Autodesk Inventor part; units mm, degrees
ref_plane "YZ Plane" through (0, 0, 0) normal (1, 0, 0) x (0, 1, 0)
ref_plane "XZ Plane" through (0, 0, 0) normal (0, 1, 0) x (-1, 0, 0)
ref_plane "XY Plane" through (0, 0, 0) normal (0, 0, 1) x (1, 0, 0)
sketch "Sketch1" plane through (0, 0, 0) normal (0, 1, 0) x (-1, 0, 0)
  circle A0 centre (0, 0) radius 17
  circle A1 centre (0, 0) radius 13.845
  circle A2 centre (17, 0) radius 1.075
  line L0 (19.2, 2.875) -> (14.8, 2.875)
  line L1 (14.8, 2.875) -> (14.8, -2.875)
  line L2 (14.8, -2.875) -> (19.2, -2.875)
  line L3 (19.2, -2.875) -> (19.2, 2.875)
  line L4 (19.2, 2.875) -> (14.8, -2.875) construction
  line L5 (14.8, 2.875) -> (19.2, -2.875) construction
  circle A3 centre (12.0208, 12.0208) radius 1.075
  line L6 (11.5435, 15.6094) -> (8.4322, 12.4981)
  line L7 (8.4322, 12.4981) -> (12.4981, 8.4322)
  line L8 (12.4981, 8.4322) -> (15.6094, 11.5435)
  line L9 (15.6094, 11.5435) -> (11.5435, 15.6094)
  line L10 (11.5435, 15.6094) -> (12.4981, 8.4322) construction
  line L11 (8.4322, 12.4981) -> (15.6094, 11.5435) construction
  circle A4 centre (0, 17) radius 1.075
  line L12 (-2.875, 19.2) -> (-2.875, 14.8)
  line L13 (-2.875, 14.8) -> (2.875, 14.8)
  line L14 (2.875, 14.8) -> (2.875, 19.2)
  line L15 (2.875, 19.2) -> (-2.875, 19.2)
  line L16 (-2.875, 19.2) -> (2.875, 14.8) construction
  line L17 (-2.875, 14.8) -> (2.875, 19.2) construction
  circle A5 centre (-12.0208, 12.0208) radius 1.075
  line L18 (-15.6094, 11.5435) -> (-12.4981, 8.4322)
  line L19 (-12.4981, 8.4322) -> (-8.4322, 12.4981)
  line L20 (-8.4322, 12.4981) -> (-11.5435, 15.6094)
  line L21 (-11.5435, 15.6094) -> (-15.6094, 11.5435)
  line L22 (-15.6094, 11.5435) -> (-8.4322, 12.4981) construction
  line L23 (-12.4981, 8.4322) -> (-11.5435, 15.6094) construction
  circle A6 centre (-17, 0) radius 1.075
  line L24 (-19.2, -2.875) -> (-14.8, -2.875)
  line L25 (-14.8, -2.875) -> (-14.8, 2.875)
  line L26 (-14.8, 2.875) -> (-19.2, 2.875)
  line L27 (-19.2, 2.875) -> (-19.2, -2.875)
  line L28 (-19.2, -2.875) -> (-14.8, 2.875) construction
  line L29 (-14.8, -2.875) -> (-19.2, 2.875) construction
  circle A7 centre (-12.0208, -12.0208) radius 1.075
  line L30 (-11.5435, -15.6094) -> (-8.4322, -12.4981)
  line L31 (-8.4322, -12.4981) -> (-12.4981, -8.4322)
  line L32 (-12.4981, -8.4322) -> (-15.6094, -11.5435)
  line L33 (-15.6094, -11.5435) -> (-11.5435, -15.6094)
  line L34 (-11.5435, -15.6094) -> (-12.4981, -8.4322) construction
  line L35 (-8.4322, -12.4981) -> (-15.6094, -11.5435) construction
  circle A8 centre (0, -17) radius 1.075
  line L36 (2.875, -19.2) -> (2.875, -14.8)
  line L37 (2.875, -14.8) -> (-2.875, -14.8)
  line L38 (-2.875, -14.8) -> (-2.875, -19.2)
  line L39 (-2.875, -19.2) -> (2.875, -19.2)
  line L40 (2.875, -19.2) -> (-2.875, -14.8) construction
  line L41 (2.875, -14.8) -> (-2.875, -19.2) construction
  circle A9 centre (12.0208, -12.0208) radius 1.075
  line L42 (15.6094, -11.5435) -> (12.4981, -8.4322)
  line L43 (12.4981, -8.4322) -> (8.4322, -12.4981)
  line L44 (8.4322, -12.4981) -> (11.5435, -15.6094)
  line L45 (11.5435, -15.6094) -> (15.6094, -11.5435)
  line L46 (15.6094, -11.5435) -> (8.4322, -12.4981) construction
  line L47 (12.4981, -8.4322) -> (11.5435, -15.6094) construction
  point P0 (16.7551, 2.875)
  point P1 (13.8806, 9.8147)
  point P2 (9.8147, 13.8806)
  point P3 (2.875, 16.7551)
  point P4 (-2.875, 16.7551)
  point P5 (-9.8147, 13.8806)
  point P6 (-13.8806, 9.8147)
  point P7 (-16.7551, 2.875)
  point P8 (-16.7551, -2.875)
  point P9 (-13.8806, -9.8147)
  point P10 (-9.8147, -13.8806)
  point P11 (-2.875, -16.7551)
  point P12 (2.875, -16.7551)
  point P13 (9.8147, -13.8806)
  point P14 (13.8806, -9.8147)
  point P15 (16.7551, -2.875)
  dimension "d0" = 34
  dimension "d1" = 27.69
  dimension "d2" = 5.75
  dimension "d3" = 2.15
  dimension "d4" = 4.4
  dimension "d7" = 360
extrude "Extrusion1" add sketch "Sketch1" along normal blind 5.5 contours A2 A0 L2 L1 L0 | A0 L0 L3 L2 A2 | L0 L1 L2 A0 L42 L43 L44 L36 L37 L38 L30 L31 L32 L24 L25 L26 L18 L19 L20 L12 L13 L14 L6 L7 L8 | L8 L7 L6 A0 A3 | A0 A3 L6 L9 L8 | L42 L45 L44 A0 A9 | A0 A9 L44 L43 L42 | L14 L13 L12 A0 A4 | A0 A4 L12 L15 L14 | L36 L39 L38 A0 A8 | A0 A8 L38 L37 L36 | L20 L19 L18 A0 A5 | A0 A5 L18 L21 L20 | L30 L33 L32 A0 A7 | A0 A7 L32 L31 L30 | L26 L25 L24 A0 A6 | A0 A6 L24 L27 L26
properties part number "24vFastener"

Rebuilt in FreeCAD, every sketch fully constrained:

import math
import FreeCAD as App
import Part
import Sketcher

V = App.Vector
Q = App.Units.Quantity

doc = App.newDocument("Part")
body = doc.addObject("PartDesign::Body", "Body")

# Sketch on XZ plane
sketch1 = doc.addObject("Sketcher::SketchObject", "Sketch")
body.addObject(sketch1)
sketch1.AttachmentSupport = (doc.XZ_Plane, [""])
sketch1.MapMode = "FlatFace"
sketch1.addGeometry([
    Part.LineSegment(V(-19.2, 2.9, 0), V(-16.8, 2.9, 0)),  # 0
    Part.ArcOfCircle(Part.Circle(V(0, 0, 0), V(0, 0, 1), 17), math.radians(145), math.radians(170)),  # 1
    Part.LineSegment(V(-13.9, 9.8, 0), V(-15.6, 11.5, 0)),  # 2
    Part.LineSegment(V(-15.6, 11.5, 0), V(-11.5, 15.6, 0)),  # 3
    Part.LineSegment(V(-11.5, 15.6, 0), V(-9.8, 13.9, 0)),  # 4
    Part.ArcOfCircle(Part.Circle(V(0, 0, 0), V(0, 0, 1), 17), math.radians(100), math.radians(125)),  # 5
    Part.LineSegment(V(-2.9, 16.8, 0), V(-2.9, 19.2, 0)),  # 6
    Part.LineSegment(V(-2.9, 19.2, 0), V(2.9, 19.2, 0)),  # 7
    Part.LineSegment(V(2.9, 19.2, 0), V(2.9, 16.8, 0)),  # 8
    Part.ArcOfCircle(Part.Circle(V(0, 0, 0), V(0, 0, 1), 17), math.radians(55), math.radians(80)),  # 9
    Part.LineSegment(V(9.8, 13.9, 0), V(11.5, 15.6, 0)),  # 10
    Part.LineSegment(V(11.5, 15.6, 0), V(15.6, 11.5, 0)),  # 11
    Part.LineSegment(V(15.6, 11.5, 0), V(13.9, 9.8, 0)),  # 12
    Part.ArcOfCircle(Part.Circle(V(0, 0, 0), V(0, 0, 1), 17), math.radians(10), math.radians(35)),  # 13
    Part.LineSegment(V(16.8, 2.9, 0), V(19.2, 2.9, 0)),  # 14
    Part.LineSegment(V(19.2, 2.9, 0), V(19.2, -2.9, 0)),  # 15
    Part.LineSegment(V(19.2, -2.9, 0), V(16.8, -2.9, 0)),  # 16
    Part.ArcOfCircle(Part.Circle(V(0, 0, 0), V(0, 0, 1), 17), math.radians(-35), math.radians(-10)),  # 17
    Part.LineSegment(V(13.9, -9.8, 0), V(15.6, -11.5, 0)),  # 18
    Part.LineSegment(V(15.6, -11.5, 0), V(11.5, -15.6, 0)),  # 19
    Part.LineSegment(V(11.5, -15.6, 0), V(9.8, -13.9, 0)),  # 20
    Part.ArcOfCircle(Part.Circle(V(0, 0, 0), V(0, 0, 1), 17), math.radians(-80), math.radians(-55)),  # 21
    Part.LineSegment(V(2.9, -16.8, 0), V(2.9, -19.2, 0)),  # 22
    Part.LineSegment(V(2.9, -19.2, 0), V(-2.9, -19.2, 0)),  # 23
    Part.LineSegment(V(-2.9, -19.2, 0), V(-2.9, -16.8, 0)),  # 24
    Part.ArcOfCircle(Part.Circle(V(0, 0, 0), V(0, 0, 1), 17), math.radians(-125), math.radians(-100)),  # 25
    Part.LineSegment(V(-9.8, -13.9, 0), V(-11.5, -15.6, 0)),  # 26
    Part.LineSegment(V(-11.5, -15.6, 0), V(-15.6, -11.5, 0)),  # 27
    Part.LineSegment(V(-15.6, -11.5, 0), V(-13.9, -9.8, 0)),  # 28
    Part.ArcOfCircle(Part.Circle(V(0, 0, 0), V(0, 0, 1), 17), math.radians(-170), math.radians(-145)),  # 29
    Part.LineSegment(V(-16.8, -2.9, 0), V(-19.2, -2.9, 0)),  # 30
    Part.LineSegment(V(-19.2, -2.9, 0), V(-19.2, 2.9, 0)),  # 31
    Part.Circle(V(-17, 0, 0), V(0, 0, 1), 1.1),  # 32
    Part.Circle(V(0, 0, 0), V(0, 0, 1), 13.8),  # 33
    Part.Circle(V(-12, 12, 0), V(0, 0, 1), 1.1),  # 34
    Part.Circle(V(-12, -12, 0), V(0, 0, 1), 1.1),  # 35
    Part.Circle(V(0, -17, 0), V(0, 0, 1), 1.1),  # 36
    Part.Circle(V(12, -12, 0), V(0, 0, 1), 1.1),  # 37
    Part.Circle(V(17, 0, 0), V(0, 0, 1), 1.1),  # 38
    Part.Circle(V(12, 12, 0), V(0, 0, 1), 1.1),  # 39
    Part.Circle(V(0, 17, 0), V(0, 0, 1), 1.1),  # 40
], False)
sketch1.addConstraint([
    Sketcher.Constraint("Coincident", 0, 2, 1, 2),
    Sketcher.Constraint("Coincident", 1, 1, 2, 1),
    Sketcher.Constraint("Coincident", 2, 2, 3, 1),
    Sketcher.Constraint("Coincident", 3, 2, 4, 1),
    Sketcher.Constraint("Coincident", 4, 2, 5, 2),
    Sketcher.Constraint("Coincident", 5, 1, 6, 1),
    Sketcher.Constraint("Coincident", 6, 2, 7, 1),
    Sketcher.Constraint("Coincident", 7, 2, 8, 1),
    Sketcher.Constraint("Coincident", 8, 2, 9, 2),
    Sketcher.Constraint("Coincident", 9, 1, 10, 1),
    Sketcher.Constraint("Coincident", 10, 2, 11, 1),
    Sketcher.Constraint("Coincident", 11, 2, 12, 1),
    Sketcher.Constraint("Coincident", 12, 2, 13, 2),
    Sketcher.Constraint("Coincident", 13, 1, 14, 1),
    Sketcher.Constraint("Coincident", 14, 2, 15, 1),
    Sketcher.Constraint("Coincident", 15, 2, 16, 1),
    Sketcher.Constraint("Coincident", 16, 2, 17, 2),
    Sketcher.Constraint("Coincident", 17, 1, 18, 1),
    Sketcher.Constraint("Coincident", 18, 2, 19, 1),
    Sketcher.Constraint("Coincident", 19, 2, 20, 1),
    Sketcher.Constraint("Coincident", 20, 2, 21, 2),
    Sketcher.Constraint("Coincident", 21, 1, 22, 1),
    Sketcher.Constraint("Coincident", 22, 2, 23, 1),
    Sketcher.Constraint("Coincident", 23, 2, 24, 1),
    Sketcher.Constraint("Coincident", 24, 2, 25, 2),
    Sketcher.Constraint("Coincident", 25, 1, 26, 1),
    Sketcher.Constraint("Coincident", 26, 2, 27, 1),
    Sketcher.Constraint("Coincident", 27, 2, 28, 1),
    Sketcher.Constraint("Coincident", 28, 2, 29, 2),
    Sketcher.Constraint("Coincident", 29, 1, 30, 1),
    Sketcher.Constraint("Coincident", 30, 2, 31, 1),
    Sketcher.Constraint("Coincident", 31, 2, 0, 1),
    Sketcher.Constraint("Horizontal", 0),
    Sketcher.Constraint("Vertical", 6),
    Sketcher.Constraint("Horizontal", 7),
    Sketcher.Constraint("Vertical", 8),
    Sketcher.Constraint("Horizontal", 14),
    Sketcher.Constraint("Vertical", 15),
    Sketcher.Constraint("Horizontal", 16),
    Sketcher.Constraint("Vertical", 22),
    Sketcher.Constraint("Horizontal", 23),
    Sketcher.Constraint("Vertical", 24),
    Sketcher.Constraint("Horizontal", 30),
    Sketcher.Constraint("Vertical", 31),
    Sketcher.Constraint("Coincident", 1, 3, -1, 1),
    Sketcher.Constraint("Coincident", 5, 3, -1, 1),
    Sketcher.Constraint("Coincident", 9, 3, -1, 1),
    Sketcher.Constraint("Coincident", 13, 3, -1, 1),
    Sketcher.Constraint("Coincident", 17, 3, -1, 1),
    Sketcher.Constraint("Coincident", 21, 3, -1, 1),
    Sketcher.Constraint("Coincident", 25, 3, -1, 1),
    Sketcher.Constraint("Coincident", 29, 3, -1, 1),
    Sketcher.Constraint("Coincident", 33, 3, -1, 1),
    Sketcher.Constraint("Equal", 1, 5),
    Sketcher.Constraint("Equal", 5, 9),
    Sketcher.Constraint("Equal", 9, 13),
    Sketcher.Constraint("Equal", 13, 17),
    Sketcher.Constraint("Equal", 17, 21),
    Sketcher.Constraint("Equal", 21, 25),
    Sketcher.Constraint("Equal", 25, 29),
    Sketcher.Constraint("Equal", 32, 34),
    Sketcher.Constraint("Equal", 34, 35),
    Sketcher.Constraint("Equal", 35, 36),
    Sketcher.Constraint("Equal", 36, 37),
    Sketcher.Constraint("Equal", 37, 38),
    Sketcher.Constraint("Equal", 38, 39),
    Sketcher.Constraint("Equal", 39, 40),
    Sketcher.Constraint("Symmetric", 34, 3, 37, 3, -1, 1),
    Sketcher.Constraint("Symmetric", 32, 3, 38, 3, -1, 1),
    Sketcher.Constraint("Symmetric", 35, 3, 39, 3, -1, 1),
    Sketcher.Constraint("Symmetric", 36, 3, 40, 3, -1, 1),
    Sketcher.Constraint("Symmetric", 2, 2, 18, 2, -1, 1),
    Sketcher.Constraint("Symmetric", 3, 2, 19, 2, -1, 1),
    Sketcher.Constraint("Symmetric", 6, 2, 22, 2, -1, 1),
    Sketcher.Constraint("Symmetric", 10, 2, 26, 2, -1, 1),
    Sketcher.Constraint("Symmetric", 11, 2, 27, 2, -1, 1),
    Sketcher.Constraint("Symmetric", 14, 2, 30, 2, -1, 1),
    Sketcher.Constraint("Symmetric", 35, 3, 37, 3, -2),
    Sketcher.Constraint("Symmetric", 3, 2, 10, 2, -2),
    Sketcher.Constraint("Symmetric", 2, 2, 11, 2, -2),
    Sketcher.Constraint("PointOnObject", 32, 3, -1),
    Sketcher.Constraint("PointOnObject", 36, 3, -2),
    Sketcher.Constraint("Perpendicular", 2, 3),
    Sketcher.Constraint("Perpendicular", 3, 4),
    Sketcher.Constraint("Perpendicular", 4, 10),
    Sketcher.Constraint("Perpendicular", 10, 11),
    Sketcher.Constraint("Perpendicular", 11, 12),
    Sketcher.Constraint("Perpendicular", 12, 18),
    Sketcher.Constraint("Perpendicular", 19, 20),
    Sketcher.Constraint("Perpendicular", 20, 26),
    Sketcher.Constraint("Perpendicular", 27, 28),
    Sketcher.Constraint("Horizontal", 5, 1, 8, 2),
    Sketcher.Constraint("Horizontal", 0, 2, 13, 1),
    Sketcher.Constraint("Horizontal", 21, 1, 24, 2),
    Sketcher.Constraint("Horizontal", 16, 2, 29, 1),
    Sketcher.Constraint("Equal", 30, 6),
    Sketcher.Constraint("Equal", 23, 15),
    Sketcher.Constraint("Equal", 2, 4),
    Sketcher.Constraint("Radius", 1, Q("17 mm")),
    Sketcher.Constraint("Diameter", 32, Q("2.15 mm")),
    Sketcher.Constraint("Diameter", 33, Q("27.69 mm")),
    Sketcher.Constraint("DistanceX", 7, 1, 7, 2, Q("5.75 mm")),
    Sketcher.Constraint("Distance", 3, Q("5.75 mm")),
    Sketcher.Constraint("DistanceX", 32, 3, -1, 1, Q("17 mm")),
    Sketcher.Constraint("DistanceY", 36, 3, -1, 1, Q("17 mm")),
    Sketcher.Constraint("DistanceY", -1, 1, 6, 2, Q("19.2 mm")),
    Sketcher.Constraint("DistanceY", 1, 1, 34, 3, Q("2.206 mm")),
    Sketcher.Constraint("DistanceX", 1, 1, 3, 2, Q("2.337 mm")),
    Sketcher.Constraint("DistanceX", 34, 3, 4, 2, Q("2.206 mm")),
])
pad1 = doc.addObject("PartDesign::Pad", "Pad")
body.addObject(pad1)
pad1.Profile = sketch1
pad1.Length = 5.5
pad1.Reversed = True

doc.recompute()
